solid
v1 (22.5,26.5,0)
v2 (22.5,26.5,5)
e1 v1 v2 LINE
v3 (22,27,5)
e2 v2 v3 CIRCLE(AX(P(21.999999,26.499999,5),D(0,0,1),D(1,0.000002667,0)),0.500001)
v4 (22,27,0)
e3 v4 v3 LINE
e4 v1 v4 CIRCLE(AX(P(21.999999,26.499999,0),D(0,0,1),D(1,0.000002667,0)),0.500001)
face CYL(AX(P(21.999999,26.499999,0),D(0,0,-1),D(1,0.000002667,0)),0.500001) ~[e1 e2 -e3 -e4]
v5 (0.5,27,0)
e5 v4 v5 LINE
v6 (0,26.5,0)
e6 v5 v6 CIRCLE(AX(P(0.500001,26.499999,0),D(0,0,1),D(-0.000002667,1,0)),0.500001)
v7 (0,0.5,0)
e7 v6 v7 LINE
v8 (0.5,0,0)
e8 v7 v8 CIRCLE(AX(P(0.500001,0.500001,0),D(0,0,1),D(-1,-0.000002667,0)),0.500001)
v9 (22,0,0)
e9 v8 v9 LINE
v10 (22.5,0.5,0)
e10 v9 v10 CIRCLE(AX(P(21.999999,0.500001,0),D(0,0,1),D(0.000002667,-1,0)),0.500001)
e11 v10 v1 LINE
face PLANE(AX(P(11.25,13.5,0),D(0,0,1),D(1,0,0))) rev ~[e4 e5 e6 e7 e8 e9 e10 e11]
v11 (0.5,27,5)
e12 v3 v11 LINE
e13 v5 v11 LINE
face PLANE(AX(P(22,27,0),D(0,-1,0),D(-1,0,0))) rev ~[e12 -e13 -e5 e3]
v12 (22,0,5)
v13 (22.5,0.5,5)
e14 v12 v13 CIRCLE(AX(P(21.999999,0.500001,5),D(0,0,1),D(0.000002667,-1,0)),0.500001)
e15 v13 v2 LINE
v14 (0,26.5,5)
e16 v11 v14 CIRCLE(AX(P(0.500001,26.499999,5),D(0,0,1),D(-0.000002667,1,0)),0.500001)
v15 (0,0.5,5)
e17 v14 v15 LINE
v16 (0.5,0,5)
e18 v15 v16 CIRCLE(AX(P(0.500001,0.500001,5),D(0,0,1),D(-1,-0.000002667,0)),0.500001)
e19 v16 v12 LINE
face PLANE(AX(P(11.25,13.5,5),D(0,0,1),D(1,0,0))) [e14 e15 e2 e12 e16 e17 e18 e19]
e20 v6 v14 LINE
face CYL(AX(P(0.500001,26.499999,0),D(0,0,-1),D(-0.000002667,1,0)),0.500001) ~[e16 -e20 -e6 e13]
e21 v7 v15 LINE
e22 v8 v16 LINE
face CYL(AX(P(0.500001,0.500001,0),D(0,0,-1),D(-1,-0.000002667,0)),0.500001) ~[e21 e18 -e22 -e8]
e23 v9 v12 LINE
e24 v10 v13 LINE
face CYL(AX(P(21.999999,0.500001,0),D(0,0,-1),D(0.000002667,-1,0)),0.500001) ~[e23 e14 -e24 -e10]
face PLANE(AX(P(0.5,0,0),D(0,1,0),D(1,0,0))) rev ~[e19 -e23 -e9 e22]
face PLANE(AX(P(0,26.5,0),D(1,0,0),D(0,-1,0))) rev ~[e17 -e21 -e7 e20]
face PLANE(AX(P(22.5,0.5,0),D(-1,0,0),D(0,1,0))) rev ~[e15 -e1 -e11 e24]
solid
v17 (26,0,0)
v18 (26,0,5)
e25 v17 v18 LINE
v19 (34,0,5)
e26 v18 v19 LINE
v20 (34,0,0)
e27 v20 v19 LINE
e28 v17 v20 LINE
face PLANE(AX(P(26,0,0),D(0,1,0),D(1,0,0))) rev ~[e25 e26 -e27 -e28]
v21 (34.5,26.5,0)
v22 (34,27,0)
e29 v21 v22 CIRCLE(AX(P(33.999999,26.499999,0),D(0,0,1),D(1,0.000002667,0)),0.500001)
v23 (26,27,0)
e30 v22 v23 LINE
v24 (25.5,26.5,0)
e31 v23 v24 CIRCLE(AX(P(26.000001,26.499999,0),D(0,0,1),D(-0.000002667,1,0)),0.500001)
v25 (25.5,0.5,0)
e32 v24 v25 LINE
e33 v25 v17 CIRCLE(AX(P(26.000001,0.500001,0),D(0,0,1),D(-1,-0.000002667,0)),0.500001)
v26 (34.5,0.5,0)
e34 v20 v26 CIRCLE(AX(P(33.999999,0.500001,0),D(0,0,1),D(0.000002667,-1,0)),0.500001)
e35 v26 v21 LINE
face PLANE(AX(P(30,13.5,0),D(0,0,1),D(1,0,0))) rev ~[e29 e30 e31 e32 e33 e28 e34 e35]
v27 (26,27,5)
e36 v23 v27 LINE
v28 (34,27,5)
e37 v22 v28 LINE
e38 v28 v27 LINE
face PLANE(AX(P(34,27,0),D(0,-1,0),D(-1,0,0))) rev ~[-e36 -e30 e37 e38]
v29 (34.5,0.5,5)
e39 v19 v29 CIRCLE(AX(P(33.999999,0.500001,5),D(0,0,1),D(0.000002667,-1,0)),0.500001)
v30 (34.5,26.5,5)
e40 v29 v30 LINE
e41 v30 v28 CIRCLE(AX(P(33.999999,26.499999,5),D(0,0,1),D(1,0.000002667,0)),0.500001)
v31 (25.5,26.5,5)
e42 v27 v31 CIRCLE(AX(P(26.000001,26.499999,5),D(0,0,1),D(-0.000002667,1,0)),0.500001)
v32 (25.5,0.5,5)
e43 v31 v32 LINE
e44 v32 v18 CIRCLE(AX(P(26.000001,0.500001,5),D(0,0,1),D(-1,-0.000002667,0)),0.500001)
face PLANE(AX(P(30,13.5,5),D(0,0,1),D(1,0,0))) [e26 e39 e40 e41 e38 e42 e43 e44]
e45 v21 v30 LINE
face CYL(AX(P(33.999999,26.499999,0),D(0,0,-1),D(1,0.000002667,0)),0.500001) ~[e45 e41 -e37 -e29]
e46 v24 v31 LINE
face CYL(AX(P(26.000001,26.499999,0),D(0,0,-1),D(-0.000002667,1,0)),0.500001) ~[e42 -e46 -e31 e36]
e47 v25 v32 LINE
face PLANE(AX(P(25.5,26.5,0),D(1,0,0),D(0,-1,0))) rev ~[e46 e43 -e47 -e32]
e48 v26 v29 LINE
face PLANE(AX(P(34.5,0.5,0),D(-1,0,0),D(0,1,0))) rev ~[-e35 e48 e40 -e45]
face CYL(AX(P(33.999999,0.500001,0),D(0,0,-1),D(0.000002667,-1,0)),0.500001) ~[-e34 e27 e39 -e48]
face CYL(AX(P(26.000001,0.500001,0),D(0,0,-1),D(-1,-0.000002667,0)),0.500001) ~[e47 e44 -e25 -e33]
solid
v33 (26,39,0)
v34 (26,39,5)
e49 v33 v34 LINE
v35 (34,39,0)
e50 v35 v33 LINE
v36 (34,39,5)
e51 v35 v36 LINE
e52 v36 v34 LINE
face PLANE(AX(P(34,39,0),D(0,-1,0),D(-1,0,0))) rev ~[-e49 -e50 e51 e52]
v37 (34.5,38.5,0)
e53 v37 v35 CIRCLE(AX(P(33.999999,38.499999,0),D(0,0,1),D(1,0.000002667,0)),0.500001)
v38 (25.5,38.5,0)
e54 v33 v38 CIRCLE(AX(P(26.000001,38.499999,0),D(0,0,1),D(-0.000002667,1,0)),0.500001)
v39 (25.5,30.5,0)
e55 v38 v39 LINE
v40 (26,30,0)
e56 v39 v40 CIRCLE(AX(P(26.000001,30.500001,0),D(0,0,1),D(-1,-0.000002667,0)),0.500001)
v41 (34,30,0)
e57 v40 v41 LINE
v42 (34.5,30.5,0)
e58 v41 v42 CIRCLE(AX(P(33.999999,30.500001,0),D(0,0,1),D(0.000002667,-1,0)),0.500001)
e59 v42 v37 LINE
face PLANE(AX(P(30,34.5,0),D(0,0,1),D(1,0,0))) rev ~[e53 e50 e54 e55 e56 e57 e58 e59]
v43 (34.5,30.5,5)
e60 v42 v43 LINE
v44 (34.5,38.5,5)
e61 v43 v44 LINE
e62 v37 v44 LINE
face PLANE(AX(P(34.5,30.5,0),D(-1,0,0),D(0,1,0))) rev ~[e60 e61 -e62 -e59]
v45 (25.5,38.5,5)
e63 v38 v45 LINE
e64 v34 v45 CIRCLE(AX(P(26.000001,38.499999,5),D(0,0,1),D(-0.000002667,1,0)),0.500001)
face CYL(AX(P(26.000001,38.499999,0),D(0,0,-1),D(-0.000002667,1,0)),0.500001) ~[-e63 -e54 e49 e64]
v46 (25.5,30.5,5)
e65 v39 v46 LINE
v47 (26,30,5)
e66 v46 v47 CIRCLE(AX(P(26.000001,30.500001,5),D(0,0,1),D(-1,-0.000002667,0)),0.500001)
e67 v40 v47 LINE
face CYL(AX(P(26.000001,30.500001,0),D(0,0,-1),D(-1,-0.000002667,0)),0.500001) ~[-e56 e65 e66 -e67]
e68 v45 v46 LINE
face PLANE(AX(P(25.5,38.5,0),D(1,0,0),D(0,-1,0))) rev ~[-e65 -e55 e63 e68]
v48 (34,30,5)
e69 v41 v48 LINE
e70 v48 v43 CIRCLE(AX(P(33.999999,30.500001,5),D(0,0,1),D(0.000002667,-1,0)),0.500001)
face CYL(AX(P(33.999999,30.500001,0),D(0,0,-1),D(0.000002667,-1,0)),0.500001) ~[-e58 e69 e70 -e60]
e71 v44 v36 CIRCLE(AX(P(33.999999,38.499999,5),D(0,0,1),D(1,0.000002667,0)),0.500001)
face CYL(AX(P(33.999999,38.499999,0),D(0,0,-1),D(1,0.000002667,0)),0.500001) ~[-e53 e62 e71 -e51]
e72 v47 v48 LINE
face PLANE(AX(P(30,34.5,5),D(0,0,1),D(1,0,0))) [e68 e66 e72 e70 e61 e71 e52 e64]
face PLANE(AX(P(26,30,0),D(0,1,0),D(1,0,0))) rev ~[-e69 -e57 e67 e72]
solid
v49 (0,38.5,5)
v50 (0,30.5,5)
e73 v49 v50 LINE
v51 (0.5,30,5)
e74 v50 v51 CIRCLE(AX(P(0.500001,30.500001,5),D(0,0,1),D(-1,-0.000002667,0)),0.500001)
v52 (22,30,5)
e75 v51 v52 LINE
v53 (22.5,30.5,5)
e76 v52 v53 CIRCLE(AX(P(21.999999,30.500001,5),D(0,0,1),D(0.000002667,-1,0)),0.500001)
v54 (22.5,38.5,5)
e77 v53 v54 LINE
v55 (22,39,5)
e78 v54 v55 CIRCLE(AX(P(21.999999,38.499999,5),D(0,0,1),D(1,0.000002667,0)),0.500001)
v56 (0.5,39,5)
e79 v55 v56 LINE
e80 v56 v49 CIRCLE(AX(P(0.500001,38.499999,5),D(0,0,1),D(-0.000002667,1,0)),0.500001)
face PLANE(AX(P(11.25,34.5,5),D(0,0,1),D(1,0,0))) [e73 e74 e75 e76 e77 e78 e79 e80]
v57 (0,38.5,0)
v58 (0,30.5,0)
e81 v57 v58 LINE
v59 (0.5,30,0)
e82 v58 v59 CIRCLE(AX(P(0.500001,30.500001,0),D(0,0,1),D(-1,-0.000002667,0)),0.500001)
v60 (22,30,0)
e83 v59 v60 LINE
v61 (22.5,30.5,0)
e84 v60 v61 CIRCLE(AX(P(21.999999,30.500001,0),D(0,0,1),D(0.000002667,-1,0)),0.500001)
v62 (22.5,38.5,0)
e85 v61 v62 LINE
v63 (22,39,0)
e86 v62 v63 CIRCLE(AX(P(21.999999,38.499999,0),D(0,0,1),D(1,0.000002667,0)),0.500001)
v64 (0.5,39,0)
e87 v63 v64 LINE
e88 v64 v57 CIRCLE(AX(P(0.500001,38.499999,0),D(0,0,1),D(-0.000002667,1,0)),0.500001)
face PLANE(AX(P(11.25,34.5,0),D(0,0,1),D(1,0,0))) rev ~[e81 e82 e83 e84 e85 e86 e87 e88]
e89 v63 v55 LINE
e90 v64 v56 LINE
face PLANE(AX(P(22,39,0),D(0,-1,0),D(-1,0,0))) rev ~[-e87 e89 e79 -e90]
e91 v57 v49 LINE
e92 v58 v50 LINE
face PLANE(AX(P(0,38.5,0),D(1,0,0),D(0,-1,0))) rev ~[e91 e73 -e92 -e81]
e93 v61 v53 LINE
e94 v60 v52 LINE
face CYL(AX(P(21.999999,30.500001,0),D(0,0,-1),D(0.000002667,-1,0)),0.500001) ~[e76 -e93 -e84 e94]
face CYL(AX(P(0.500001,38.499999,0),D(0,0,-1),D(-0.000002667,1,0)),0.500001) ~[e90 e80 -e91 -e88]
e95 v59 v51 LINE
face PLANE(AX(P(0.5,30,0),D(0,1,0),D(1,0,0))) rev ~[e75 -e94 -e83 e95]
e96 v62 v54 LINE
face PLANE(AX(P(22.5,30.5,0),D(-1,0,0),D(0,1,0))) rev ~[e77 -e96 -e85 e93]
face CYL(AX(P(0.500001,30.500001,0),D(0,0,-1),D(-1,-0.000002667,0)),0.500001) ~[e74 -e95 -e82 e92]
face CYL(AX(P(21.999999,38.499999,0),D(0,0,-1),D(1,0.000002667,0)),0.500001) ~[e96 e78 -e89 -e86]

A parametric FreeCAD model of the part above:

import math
import FreeCAD as App
import Part
import Sketcher
Q = App.Units.Quantity

doc = App.newDocument("Part")
body = doc.addObject("PartDesign::Body", "Body")
body.AllowCompound = True

# Sketch on XY plane
sketch1 = doc.addObject("Sketcher::SketchObject", "Sketch")
body.addObject(sketch1)
sketch1.AttachmentSupport = (doc.XY_Plane, [""])
sketch1.MapMode = "FlatFace"
sketch1.addGeometry([
    Part.ArcOfCircle(Part.Circle(App.Vector(0.500001, 0.500001, 0), App.Vector(0, 0, 1), 0.500001), math.radians(-179.999847), math.radians(-90.000153)),  # 0
    Part.LineSegment(App.Vector(0.5, 0, 0), App.Vector(22, 0, 0)),  # 1
    Part.ArcOfCircle(Part.Circle(App.Vector(21.999999, 0.500001, 0), App.Vector(0, 0, 1), 0.500001), math.radians(-89.999847), math.radians(-0.000153)),  # 2
    Part.LineSegment(App.Vector(22.5, 0.5, 0), App.Vector(22.5, 26.5, 0)),  # 3
    Part.ArcOfCircle(Part.Circle(App.Vector(21.999999, 26.499999, 0), App.Vector(0, 0, 1), 0.500001), math.radians(0.000153), math.radians(89.999847)),  # 4
    Part.LineSegment(App.Vector(22, 27, 0), App.Vector(0.5, 27, 0)),  # 5
    Part.ArcOfCircle(Part.Circle(App.Vector(0.500001, 26.499999, 0), App.Vector(0, 0, 1), 0.500001), math.radians(90.000153), math.radians(179.999847)),  # 6
    Part.LineSegment(App.Vector(0, 26.5, 0), App.Vector(0, 0.5, 0)),  # 7
    Part.ArcOfCircle(Part.Circle(App.Vector(26.000001, 0.500001, 0), App.Vector(0, 0, 1), 0.500001), math.radians(-179.999847), math.radians(-90.000153)),  # 8
    Part.LineSegment(App.Vector(26, 0, 0), App.Vector(34, 0, 0)),  # 9
    Part.ArcOfCircle(Part.Circle(App.Vector(33.999999, 0.500001, 0), App.Vector(0, 0, 1), 0.500001), math.radians(-89.999847), math.radians(-0.000153)),  # 10
    Part.LineSegment(App.Vector(34.5, 0.5, 0), App.Vector(34.5, 26.5, 0)),  # 11
    Part.ArcOfCircle(Part.Circle(App.Vector(33.999999, 26.499999, 0), App.Vector(0, 0, 1), 0.500001), math.radians(0.000153), math.radians(89.999847)),  # 12
    Part.LineSegment(App.Vector(34, 27, 0), App.Vector(26, 27, 0)),  # 13
    Part.ArcOfCircle(Part.Circle(App.Vector(26.000001, 26.499999, 0), App.Vector(0, 0, 1), 0.500001), math.radians(90.000153), math.radians(179.999847)),  # 14
    Part.LineSegment(App.Vector(25.5, 26.5, 0), App.Vector(25.5, 0.5, 0)),  # 15
    Part.ArcOfCircle(Part.Circle(App.Vector(0.500001, 30.500001, 0), App.Vector(0, 0, 1), 0.500001), math.radians(-179.999847), math.radians(-90.000153)),  # 16
    Part.LineSegment(App.Vector(0.5, 30, 0), App.Vector(22, 30, 0)),  # 17
    Part.ArcOfCircle(Part.Circle(App.Vector(21.999999, 30.500001, 0), App.Vector(0, 0, 1), 0.500001), math.radians(-89.999847), math.radians(-0.000153)),  # 18
    Part.LineSegment(App.Vector(22.5, 30.5, 0), App.Vector(22.5, 38.5, 0)),  # 19
    Part.ArcOfCircle(Part.Circle(App.Vector(21.999999, 38.499999, 0), App.Vector(0, 0, 1), 0.500001), math.radians(0.000153), math.radians(89.999847)),  # 20
    Part.LineSegment(App.Vector(22, 39, 0), App.Vector(0.5, 39, 0)),  # 21
    Part.ArcOfCircle(Part.Circle(App.Vector(0.500001, 38.499999, 0), App.Vector(0, 0, 1), 0.500001), math.radians(90.000153), math.radians(179.999847)),  # 22
    Part.LineSegment(App.Vector(0, 38.5, 0), App.Vector(0, 30.5, 0)),  # 23
    Part.ArcOfCircle(Part.Circle(App.Vector(26.000001, 30.500001, 0), App.Vector(0, 0, 1), 0.500001), math.radians(-179.999847), math.radians(-90.000153)),  # 24
    Part.LineSegment(App.Vector(26, 30, 0), App.Vector(34, 30, 0)),  # 25
    Part.ArcOfCircle(Part.Circle(App.Vector(33.999999, 30.500001, 0), App.Vector(0, 0, 1), 0.500001), math.radians(-89.999847), math.radians(-0.000153)),  # 26
    Part.LineSegment(App.Vector(34.5, 30.5, 0), App.Vector(34.5, 38.5, 0)),  # 27
    Part.ArcOfCircle(Part.Circle(App.Vector(33.999999, 38.499999, 0), App.Vector(0, 0, 1), 0.500001), math.radians(0.000153), math.radians(89.999847)),  # 28
    Part.LineSegment(App.Vector(34, 39, 0), App.Vector(26, 39, 0)),  # 29
    Part.ArcOfCircle(Part.Circle(App.Vector(26.000001, 38.499999, 0), App.Vector(0, 0, 1), 0.500001), math.radians(90.000153), math.radians(179.999847)),  # 30
    Part.LineSegment(App.Vector(25.5, 38.5, 0), App.Vector(25.5, 30.5, 0)),  # 31
], False)
sketch1.addConstraint([
    Sketcher.Constraint("Coincident", 0, 2, 1, 1),
    Sketcher.Constraint("Coincident", 1, 2, 2, 1),
    Sketcher.Constraint("Coincident", 2, 2, 3, 1),
    Sketcher.Constraint("Coincident", 3, 2, 4, 1),
    Sketcher.Constraint("Coincident", 4, 2, 5, 1),
    Sketcher.Constraint("Coincident", 5, 2, 6, 1),
    Sketcher.Constraint("Coincident", 6, 2, 7, 1),
    Sketcher.Constraint("Coincident", 7, 2, 0, 1),
    Sketcher.Constraint("Coincident", 8, 2, 9, 1),
    Sketcher.Constraint("Coincident", 9, 2, 10, 1),
    Sketcher.Constraint("Coincident", 10, 2, 11, 1),
    Sketcher.Constraint("Coincident", 11, 2, 12, 1),
    Sketcher.Constraint("Coincident", 12, 2, 13, 1),
    Sketcher.Constraint("Coincident", 13, 2, 14, 1),
    Sketcher.Constraint("Coincident", 14, 2, 15, 1),
    Sketcher.Constraint("Coincident", 15, 2, 8, 1),
    Sketcher.Constraint("Coincident", 16, 2, 17, 1),
    Sketcher.Constraint("Coincident", 17, 2, 18, 1),
    Sketcher.Constraint("Coincident", 18, 2, 19, 1),
    Sketcher.Constraint("Coincident", 19, 2, 20, 1),
    Sketcher.Constraint("Coincident", 20, 2, 21, 1),
    Sketcher.Constraint("Coincident", 21, 2, 22, 1),
    Sketcher.Constraint("Coincident", 22, 2, 23, 1),
    Sketcher.Constraint("Coincident", 23, 2, 16, 1),
    Sketcher.Constraint("Coincident", 24, 2, 25, 1),
    Sketcher.Constraint("Coincident", 25, 2, 26, 1),
    Sketcher.Constraint("Coincident", 26, 2, 27, 1),
    Sketcher.Constraint("Coincident", 27, 2, 28, 1),
    Sketcher.Constraint("Coincident", 28, 2, 29, 1),
    Sketcher.Constraint("Coincident", 29, 2, 30, 1),
    Sketcher.Constraint("Coincident", 30, 2, 31, 1),
    Sketcher.Constraint("Coincident", 31, 2, 24, 1),
    Sketcher.Constraint("Horizontal", 1),
    Sketcher.Constraint("Vertical", 3),
    Sketcher.Constraint("Horizontal", 5),
    Sketcher.Constraint("Vertical", 7),
    Sketcher.Constraint("Horizontal", 9),
    Sketcher.Constraint("Vertical", 11),
    Sketcher.Constraint("Horizontal", 13),
    Sketcher.Constraint("Vertical", 15),
    Sketcher.Constraint("Horizontal", 17),
    Sketcher.Constraint("Vertical", 19),
    Sketcher.Constraint("Horizontal", 21),
    Sketcher.Constraint("Vertical", 23),
    Sketcher.Constraint("Horizontal", 25),
    Sketcher.Constraint("Vertical", 27),
    Sketcher.Constraint("Horizontal", 29),
    Sketcher.Constraint("Vertical", 31),
    Sketcher.Constraint("Equal", 0, 2),
    Sketcher.Constraint("Equal", 2, 4),
    Sketcher.Constraint("Equal", 4, 6),
    Sketcher.Constraint("Equal", 6, 8),
    Sketcher.Constraint("Equal", 8, 10),
    Sketcher.Constraint("Equal", 10, 12),
    Sketcher.Constraint("Equal", 12, 14),
    Sketcher.Constraint("Equal", 14, 16),
    Sketcher.Constraint("Equal", 16, 18),
    Sketcher.Constraint("Equal", 18, 20),
    Sketcher.Constraint("Equal", 20, 22),
    Sketcher.Constraint("Equal", 22, 24),
    Sketcher.Constraint("Equal", 24, 26),
    Sketcher.Constraint("Equal", 26, 28),
    Sketcher.Constraint("Equal", 28, 30),
    Sketcher.Constraint("PointOnObject", 0, 2, -1),
    Sketcher.Constraint("PointOnObject", 6, 2, -2),
    Sketcher.Constraint("PointOnObject", 8, 2, -1),
    Sketcher.Constraint("PointOnObject", 22, 2, -2),
    Sketcher.Constraint("Horizontal", 6, 3, 12, 3),
    Sketcher.Constraint("Horizontal", 18, 3, 24, 3),
    Sketcher.Constraint("Horizontal", 22, 3, 28, 3),
    Sketcher.Constraint("Horizontal", 10, 3, 2, 2),
    Sketcher.Constraint("Horizontal", 14, 3, 3, 2),
    Sketcher.Constraint("Horizontal", 3, 2, 6, 2),
    Sketcher.Constraint("Horizontal", 2, 2, 7, 2),
    Sketcher.Constraint("Horizontal", 7, 2, 10, 2),
    Sketcher.Constraint("Horizontal", 6, 2, 11, 2),
    Sketcher.Constraint("Horizontal", 11, 2, 14, 2),
    Sketcher.Constraint("Horizontal", 10, 2, 15, 2),
    Sketcher.Constraint("Horizontal", 26, 3, 18, 2),
    Sketcher.Constraint("Horizontal", 30, 3, 19, 2),
    Sketcher.Constraint("Horizontal", 19, 2, 22, 2),
    Sketcher.Constraint("Horizontal", 18, 2, 23, 2),
    Sketcher.Constraint("Horizontal", 23, 2, 26, 2),
    Sketcher.Constraint("Horizontal", 22, 2, 27, 2),
    Sketcher.Constraint("Horizontal", 27, 2, 30, 2),
    Sketcher.Constraint("Horizontal", 26, 2, 31, 2),
    Sketcher.Constraint("Vertical", 4, 3, 18, 3),
    Sketcher.Constraint("Vertical", 14, 3, 24, 3),
    Sketcher.Constraint("Vertical", 12, 3, 26, 3),
    Sketcher.Constraint("Vertical", 22, 3, 0, 2),
    Sketcher.Constraint("Vertical", 20, 3, 1, 2),
    Sketcher.Constraint("Vertical", 1, 2, 4, 2),
    Sketcher.Constraint("Vertical", 0, 2, 5, 2),
    Sketcher.Constraint("Vertical", 30, 3, 8, 2),
    Sketcher.Constraint("Vertical", 28, 3, 9, 2),
    Sketcher.Constraint("Vertical", 9, 2, 12, 2),
    Sketcher.Constraint("Vertical", 8, 2, 13, 2),
    Sketcher.Constraint("Vertical", 5, 2, 16, 2),
    Sketcher.Constraint("Vertical", 4, 2, 17, 2),
    Sketcher.Constraint("Vertical", 17, 2, 20, 2),
    Sketcher.Constraint("Vertical", 16, 2, 21, 2),
    Sketcher.Constraint("Vertical", 13, 2, 24, 2),
    Sketcher.Constraint("Vertical", 12, 2, 25, 2),
    Sketcher.Constraint("Vertical", 25, 2, 28, 2),
    Sketcher.Constraint("Vertical", 24, 2, 29, 2),
    Sketcher.Constraint("Equal", 29, 19),
    Sketcher.Constraint("Radius", 0, Q("0.500001 mm")),
    Sketcher.Constraint("DistanceX", 9, 1, 9, 2, Q("8 mm")),
    Sketcher.Constraint("DistanceY", 3, 1, 3, 2, Q("26 mm")),
    Sketcher.Constraint("DistanceX", 1, 1, 1, 2, Q("21.5 mm")),
    Sketcher.Constraint("DistanceX", -1, 1, 8, 3, Q("26.000001 mm")),
    Sketcher.Constraint("DistanceY", -1, 1, 16, 2, Q("30 mm")),
])
pad1 = doc.addObject("PartDesign::Pad", "Pad")
body.addObject(pad1)
pad1.Profile = sketch1
pad1.Length = 5

doc.recompute()
